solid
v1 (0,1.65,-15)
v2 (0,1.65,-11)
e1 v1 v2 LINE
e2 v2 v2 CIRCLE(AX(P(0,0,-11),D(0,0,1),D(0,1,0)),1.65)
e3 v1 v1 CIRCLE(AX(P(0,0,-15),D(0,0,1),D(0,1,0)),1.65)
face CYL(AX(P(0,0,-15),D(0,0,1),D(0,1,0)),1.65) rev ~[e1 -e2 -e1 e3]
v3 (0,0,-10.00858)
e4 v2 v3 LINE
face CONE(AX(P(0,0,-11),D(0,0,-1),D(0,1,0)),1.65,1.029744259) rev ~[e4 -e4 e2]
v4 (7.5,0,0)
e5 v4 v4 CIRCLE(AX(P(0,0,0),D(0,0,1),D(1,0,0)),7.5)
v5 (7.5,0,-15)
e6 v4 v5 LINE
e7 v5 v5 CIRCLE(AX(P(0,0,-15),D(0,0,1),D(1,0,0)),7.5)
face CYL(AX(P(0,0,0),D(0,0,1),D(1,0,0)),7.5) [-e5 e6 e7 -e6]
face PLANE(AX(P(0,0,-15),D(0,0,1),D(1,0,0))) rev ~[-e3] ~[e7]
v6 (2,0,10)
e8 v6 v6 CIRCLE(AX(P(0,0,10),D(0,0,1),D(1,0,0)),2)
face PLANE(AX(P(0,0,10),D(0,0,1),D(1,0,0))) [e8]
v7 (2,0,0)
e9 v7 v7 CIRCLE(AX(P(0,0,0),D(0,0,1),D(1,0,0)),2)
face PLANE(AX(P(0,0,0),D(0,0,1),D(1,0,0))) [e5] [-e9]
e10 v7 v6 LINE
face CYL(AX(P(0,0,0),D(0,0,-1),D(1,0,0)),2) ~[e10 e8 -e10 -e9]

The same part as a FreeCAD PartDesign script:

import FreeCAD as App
import Part
import Sketcher

V = App.Vector

doc = App.newDocument("Part")
params = doc.addObject("Spreadsheet::Sheet", "Params")
for row, (alias, value) in enumerate([
    ("sketch1_diameter", "4 mm"),
    ("pad1_length", "10 mm"),
    ("sketch2_diameter", "15 mm"),
    ("pad2_length", "15 mm"),
    ("sketch3_diameter", "3.3 mm"),
    ("hole_diameter", "3.3 mm"),
    ("hole_depth", "4 mm"),
], start=1):
    params.set(f"A{row}", alias)
    params.set(f"B{row}", "=" + value)
    params.setAlias(f"B{row}", alias)

body = doc.addObject("PartDesign::Body", "Body")

sketch1 = body.newObject("Sketcher::SketchObject", "Sketch")
sketch1.AttachmentSupport = (doc.getObject("XY_Plane"), [""])
sketch1.MapMode = "FlatFace"
sketch1.addGeometry(Part.Circle(V(0, 0, 0), V(0, 0, 1), 2), False)
sketch1.addConstraint([
    Sketcher.Constraint("Coincident", 0, 3, -1, 1),
    Sketcher.Constraint("Diameter", 0, 4.0),
])
sketch1.setExpression("Constraints[1]", "Params.sketch1_diameter")
pad1 = body.newObject("PartDesign::Pad", "Pad")
pad1.Profile = sketch1
pad1.setExpression("Length", "Params.pad1_length")

sketch2 = body.newObject("Sketcher::SketchObject", "Sketch001")
sketch2.AttachmentSupport = (doc.getObject("XY_Plane"), [""])
sketch2.MapMode = "FlatFace"
sketch2.addGeometry(Part.Circle(V(0, 0, 0), V(0, 0, 1), 8), False)
sketch2.addConstraint([
    Sketcher.Constraint("Coincident", 0, 3, -1, 1),
    Sketcher.Constraint("Diameter", 0, 15.0),
])
sketch2.setExpression("Constraints[1]", "Params.sketch2_diameter")
pad2 = body.newObject("PartDesign::Pad", "Pad001")
pad2.Profile = sketch2
pad2.setExpression("Length", "Params.pad2_length")
pad2.Reversed = True

sketch3 = body.newObject("Sketcher::SketchObject", "Sketch002")
sketch3.AttachmentSupport = (doc.getObject("XY_Plane"), [""])
sketch3.MapMode = "FlatFace"
sketch3.AttachmentOffset = App.Placement(V(0, 0, -15), App.Rotation())
sketch3.addGeometry(Part.Circle(V(0, 0, 0), V(0, 0, 1), 1.6), False)
sketch3.addConstraint([
    Sketcher.Constraint("Coincident", 0, 3, -1, 1),
    Sketcher.Constraint("Diameter", 0, 3.3),
])
sketch3.setExpression("Constraints[1]", "Params.sketch3_diameter")
doc.recompute()
hole = body.newObject("PartDesign::Hole", "Hole")
hole.Profile = sketch3
hole.ThreadType = "None"
hole.setExpression("Diameter", "Params.hole_diameter")
hole.DepthType = "Dimension"
hole.setExpression("Depth", "Params.hole_depth")
hole.DrillPoint = "Angled"
hole.DrillPointAngle = 118
hole.Reversed = True

doc.recompute()
